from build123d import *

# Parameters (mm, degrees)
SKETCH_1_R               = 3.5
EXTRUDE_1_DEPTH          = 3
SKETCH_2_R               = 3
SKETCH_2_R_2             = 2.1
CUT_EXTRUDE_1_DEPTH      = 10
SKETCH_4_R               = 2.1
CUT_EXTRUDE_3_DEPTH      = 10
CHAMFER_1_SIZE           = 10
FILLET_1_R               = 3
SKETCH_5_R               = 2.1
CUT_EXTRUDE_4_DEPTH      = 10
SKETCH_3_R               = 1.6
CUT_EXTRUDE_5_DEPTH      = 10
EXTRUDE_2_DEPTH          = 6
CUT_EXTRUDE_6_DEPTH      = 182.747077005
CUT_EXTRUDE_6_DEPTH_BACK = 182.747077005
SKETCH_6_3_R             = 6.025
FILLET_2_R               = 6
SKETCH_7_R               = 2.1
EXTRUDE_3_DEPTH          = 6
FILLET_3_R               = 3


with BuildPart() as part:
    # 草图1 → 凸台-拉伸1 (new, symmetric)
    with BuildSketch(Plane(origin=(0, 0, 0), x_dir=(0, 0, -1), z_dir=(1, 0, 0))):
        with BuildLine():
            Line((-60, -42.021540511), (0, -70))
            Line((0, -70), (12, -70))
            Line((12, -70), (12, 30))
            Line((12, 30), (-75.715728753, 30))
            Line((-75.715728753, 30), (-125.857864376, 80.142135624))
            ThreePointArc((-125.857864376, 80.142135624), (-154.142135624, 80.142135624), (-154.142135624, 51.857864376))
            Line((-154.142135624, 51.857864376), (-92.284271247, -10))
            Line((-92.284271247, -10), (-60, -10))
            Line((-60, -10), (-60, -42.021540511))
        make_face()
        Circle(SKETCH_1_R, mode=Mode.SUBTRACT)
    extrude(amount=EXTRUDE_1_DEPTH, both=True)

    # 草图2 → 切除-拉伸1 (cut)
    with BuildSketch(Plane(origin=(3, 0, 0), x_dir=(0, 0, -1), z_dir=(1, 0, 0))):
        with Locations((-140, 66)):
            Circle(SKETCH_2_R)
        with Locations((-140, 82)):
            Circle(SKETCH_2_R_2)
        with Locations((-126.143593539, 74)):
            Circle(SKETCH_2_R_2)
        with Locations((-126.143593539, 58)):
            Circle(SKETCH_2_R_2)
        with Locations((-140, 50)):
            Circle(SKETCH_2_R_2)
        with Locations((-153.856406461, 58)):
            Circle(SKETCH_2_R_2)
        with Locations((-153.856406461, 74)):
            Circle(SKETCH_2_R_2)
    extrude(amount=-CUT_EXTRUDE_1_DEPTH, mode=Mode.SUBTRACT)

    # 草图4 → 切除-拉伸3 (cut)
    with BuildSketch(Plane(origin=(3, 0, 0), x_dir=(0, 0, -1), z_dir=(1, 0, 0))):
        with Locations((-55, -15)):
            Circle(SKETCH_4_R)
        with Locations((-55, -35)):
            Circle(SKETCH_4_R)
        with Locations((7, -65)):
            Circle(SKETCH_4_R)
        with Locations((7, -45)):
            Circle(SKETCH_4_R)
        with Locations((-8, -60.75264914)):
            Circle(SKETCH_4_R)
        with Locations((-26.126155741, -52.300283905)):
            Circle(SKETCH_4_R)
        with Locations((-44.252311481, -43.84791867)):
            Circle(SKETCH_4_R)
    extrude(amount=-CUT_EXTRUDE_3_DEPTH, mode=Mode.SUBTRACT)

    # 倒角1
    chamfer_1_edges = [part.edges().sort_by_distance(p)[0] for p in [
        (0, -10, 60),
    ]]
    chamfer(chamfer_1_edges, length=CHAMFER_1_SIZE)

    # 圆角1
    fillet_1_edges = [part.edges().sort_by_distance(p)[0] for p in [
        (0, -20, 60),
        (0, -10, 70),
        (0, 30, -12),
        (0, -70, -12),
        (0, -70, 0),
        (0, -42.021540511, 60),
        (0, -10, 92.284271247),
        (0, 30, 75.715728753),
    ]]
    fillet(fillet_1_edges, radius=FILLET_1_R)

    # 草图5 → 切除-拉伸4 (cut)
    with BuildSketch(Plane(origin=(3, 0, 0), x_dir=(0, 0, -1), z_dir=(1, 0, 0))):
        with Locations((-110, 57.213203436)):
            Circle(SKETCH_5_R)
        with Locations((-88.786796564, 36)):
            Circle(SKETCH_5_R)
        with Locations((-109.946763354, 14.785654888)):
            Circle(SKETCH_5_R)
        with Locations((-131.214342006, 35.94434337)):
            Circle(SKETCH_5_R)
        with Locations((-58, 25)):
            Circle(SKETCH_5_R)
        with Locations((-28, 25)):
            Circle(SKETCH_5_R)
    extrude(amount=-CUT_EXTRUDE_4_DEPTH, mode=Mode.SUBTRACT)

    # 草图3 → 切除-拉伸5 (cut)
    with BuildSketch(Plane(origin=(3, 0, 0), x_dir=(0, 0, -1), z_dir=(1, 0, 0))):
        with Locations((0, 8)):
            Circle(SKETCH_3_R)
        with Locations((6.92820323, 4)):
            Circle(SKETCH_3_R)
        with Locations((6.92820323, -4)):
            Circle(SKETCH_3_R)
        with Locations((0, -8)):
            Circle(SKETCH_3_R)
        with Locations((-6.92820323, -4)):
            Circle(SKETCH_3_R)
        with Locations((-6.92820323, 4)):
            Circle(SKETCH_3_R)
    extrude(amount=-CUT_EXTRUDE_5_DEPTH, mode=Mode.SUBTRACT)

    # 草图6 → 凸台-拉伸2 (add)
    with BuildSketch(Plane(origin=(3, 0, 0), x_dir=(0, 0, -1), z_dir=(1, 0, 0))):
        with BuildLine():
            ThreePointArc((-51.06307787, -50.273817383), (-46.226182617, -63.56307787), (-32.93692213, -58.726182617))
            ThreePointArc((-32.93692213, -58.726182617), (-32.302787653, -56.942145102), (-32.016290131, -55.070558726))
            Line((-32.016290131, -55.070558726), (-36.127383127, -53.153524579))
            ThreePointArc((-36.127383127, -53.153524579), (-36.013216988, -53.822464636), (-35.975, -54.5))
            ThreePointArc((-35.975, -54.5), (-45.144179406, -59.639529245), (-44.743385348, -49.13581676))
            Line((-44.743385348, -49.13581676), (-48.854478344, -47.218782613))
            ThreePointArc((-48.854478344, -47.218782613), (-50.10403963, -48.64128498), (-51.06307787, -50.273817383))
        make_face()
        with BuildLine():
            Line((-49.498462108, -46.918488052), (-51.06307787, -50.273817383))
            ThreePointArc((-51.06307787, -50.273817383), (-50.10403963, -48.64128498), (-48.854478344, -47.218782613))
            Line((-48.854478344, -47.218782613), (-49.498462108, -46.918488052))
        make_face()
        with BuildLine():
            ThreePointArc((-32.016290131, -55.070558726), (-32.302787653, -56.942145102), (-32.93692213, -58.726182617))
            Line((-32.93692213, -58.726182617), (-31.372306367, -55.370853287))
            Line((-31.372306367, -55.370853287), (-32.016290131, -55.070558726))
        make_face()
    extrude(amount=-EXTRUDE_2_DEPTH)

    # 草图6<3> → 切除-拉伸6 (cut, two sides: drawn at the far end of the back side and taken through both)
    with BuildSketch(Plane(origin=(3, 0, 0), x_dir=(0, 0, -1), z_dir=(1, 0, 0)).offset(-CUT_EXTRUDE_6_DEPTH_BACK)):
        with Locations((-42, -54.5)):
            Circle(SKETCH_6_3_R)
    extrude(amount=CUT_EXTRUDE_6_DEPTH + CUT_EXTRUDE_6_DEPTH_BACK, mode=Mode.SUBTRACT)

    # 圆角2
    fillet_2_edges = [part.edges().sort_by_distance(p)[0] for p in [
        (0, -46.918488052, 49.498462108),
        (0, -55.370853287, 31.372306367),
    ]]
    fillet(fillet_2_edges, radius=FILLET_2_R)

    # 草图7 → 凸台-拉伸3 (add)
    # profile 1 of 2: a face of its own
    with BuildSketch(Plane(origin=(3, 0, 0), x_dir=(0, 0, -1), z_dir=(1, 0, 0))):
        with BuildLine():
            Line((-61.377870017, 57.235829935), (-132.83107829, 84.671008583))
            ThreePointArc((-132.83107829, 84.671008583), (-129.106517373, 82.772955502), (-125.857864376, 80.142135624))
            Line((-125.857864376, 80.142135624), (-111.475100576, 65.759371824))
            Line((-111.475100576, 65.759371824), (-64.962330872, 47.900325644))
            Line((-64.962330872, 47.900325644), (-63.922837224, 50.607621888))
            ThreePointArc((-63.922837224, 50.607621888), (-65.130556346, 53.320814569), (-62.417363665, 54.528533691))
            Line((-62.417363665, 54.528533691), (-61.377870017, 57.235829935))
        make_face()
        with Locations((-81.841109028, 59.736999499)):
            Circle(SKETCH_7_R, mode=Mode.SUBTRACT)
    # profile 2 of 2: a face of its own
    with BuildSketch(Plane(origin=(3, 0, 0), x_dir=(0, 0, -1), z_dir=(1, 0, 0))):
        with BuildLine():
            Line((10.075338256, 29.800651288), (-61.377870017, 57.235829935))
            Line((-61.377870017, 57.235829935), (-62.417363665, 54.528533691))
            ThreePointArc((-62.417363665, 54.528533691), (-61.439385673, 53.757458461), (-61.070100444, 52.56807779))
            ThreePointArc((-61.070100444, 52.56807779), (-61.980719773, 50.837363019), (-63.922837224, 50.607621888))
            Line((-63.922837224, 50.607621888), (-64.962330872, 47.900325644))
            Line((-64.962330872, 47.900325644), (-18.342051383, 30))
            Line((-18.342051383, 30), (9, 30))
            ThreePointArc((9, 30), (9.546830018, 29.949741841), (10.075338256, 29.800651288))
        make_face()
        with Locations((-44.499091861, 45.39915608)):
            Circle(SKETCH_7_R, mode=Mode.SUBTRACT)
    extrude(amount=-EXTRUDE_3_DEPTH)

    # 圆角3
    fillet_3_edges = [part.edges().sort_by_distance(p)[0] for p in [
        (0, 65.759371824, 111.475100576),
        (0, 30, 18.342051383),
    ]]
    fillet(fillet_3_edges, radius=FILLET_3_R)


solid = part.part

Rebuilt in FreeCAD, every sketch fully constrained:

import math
import FreeCAD as App
import Part
import Sketcher
Q = App.Units.Quantity


def edges_at(feature, points):
    """Names of the edges that pass closest to the given points."""
    edges = feature.Shape.Edges
    near = lambda p: min(range(len(edges)), key=lambda i: edges[i].distToShape(Part.Vertex(*p))[0])
    return sorted({f"Edge{near(p) + 1}" for p in points})

doc = App.newDocument("Part")
body = doc.addObject("PartDesign::Body", "Body")

# Sketch on YZ plane
sketch1 = body.newObject("Sketcher::SketchObject", "Sketch")
sketch1.AttachmentSupport = (doc.getObject("YZ_Plane"), [""])
sketch1.MapMode = "FlatFace"
sketch1.addGeometry(Part.LineSegment(App.Vector(-42.021541, 60, 0), App.Vector(-70, 0, 0)), False)
sketch1.addGeometry(Part.LineSegment(App.Vector(-70, 0, 0), App.Vector(-70, -12, 0)), False)
sketch1.addGeometry(Part.LineSegment(App.Vector(-70, -12, 0), App.Vector(30, -12, 0)), False)
sketch1.addGeometry(Part.LineSegment(App.Vector(30, -12, 0), App.Vector(30, 75.715729, 0)), False)
sketch1.addGeometry(Part.LineSegment(App.Vector(30, 75.715729, 0), App.Vector(80.142136, 125.857864, 0)), False)
sketch1.addGeometry(Part.ArcOfCircle(Part.Circle(App.Vector(66, 140, 0), App.Vector(0, 0, 1), 20), math.radians(-45), math.radians(135)), False)
sketch1.addGeometry(Part.LineSegment(App.Vector(51.857864, 154.142136, 0), App.Vector(-10, 92.284271, 0)), False)
sketch1.addGeometry(Part.LineSegment(App.Vector(-10, 92.284271, 0), App.Vector(-10, 60, 0)), False)
sketch1.addGeometry(Part.LineSegment(App.Vector(-10, 60, 0), App.Vector(-42.021541, 60, 0)), False)
sketch1.addGeometry(Part.Circle(App.Vector(0, 0, 0), App.Vector(0, 0, 1), 3.5), False)
sketch1.addConstraint(Sketcher.Constraint("Coincident", 0, 2, 1, 1))
sketch1.addConstraint(Sketcher.Constraint("Coincident", 1, 2, 2, 1))
sketch1.addConstraint(Sketcher.Constraint("Coincident", 2, 2, 3, 1))
sketch1.addConstraint(Sketcher.Constraint("Coincident", 3, 2, 4, 1))
sketch1.addConstraint(Sketcher.Constraint("Tangent", 4, 2, 5, 1))
sketch1.addConstraint(Sketcher.Constraint("Tangent", 5, 2, 6, 1))
sketch1.addConstraint(Sketcher.Constraint("Coincident", 6, 2, 7, 1))
sketch1.addConstraint(Sketcher.Constraint("Coincident", 7, 2, 8, 1))
sketch1.addConstraint(Sketcher.Constraint("Coincident", 8, 2, 0, 1))
sketch1.addConstraint(Sketcher.Constraint("Vertical", 1))
sketch1.addConstraint(Sketcher.Constraint("Horizontal", 2))
sketch1.addConstraint(Sketcher.Constraint("Vertical", 3))
sketch1.addConstraint(Sketcher.Constraint("Vertical", 7))
sketch1.addConstraint(Sketcher.Constraint("Horizontal", 8))
sketch1.addConstraint(Sketcher.Constraint("Coincident", 9, 3, -1, 1))
sketch1.addConstraint(Sketcher.Constraint("PointOnObject", 0, 2, -1))
sketch1.addConstraint(Sketcher.Constraint("Parallel", 4, 6))
sketch1.addConstraint(Sketcher.Constraint("Diameter", 9, 7.0))
sketch1.addConstraint(Sketcher.Constraint("Radius", 5, 20.0))
sketch1.addConstraint(Sketcher.Constraint("DistanceX", 2, 1, 2, 2, 100.0))
sketch1.addConstraint(Sketcher.Constraint("DistanceY", 1, 2, 1, 1, 12.0))
sketch1.addConstraint(Sketcher.Constraint("Angle", 0, Q("-115 deg")))
sketch1.addConstraint(Sketcher.Constraint("Angle", 4, Q("45 deg")))
sketch1.addConstraint(Sketcher.Constraint("DistanceX", -1, 1, 5, 3, 66.0))
sketch1.addConstraint(Sketcher.Constraint("DistanceY", -1, 1, 5, 3, 140.0))
sketch1.addConstraint(Sketcher.Constraint("DistanceX", 0, 2, -1, 1, 70.0))
sketch1.addConstraint(Sketcher.Constraint("DistanceX", 6, 2, -1, 1, 10.0))
sketch1.addConstraint(Sketcher.Constraint("DistanceY", -1, 1, 7, 2, 60.0))
pad1 = body.newObject("PartDesign::Pad", "Pad")
pad1.Profile = sketch1
pad1.Length = 6
pad1.Midplane = True

# Sketch on YZ plane
sketch2 = body.newObject("Sketcher::SketchObject", "Sketch001")
sketch2.AttachmentSupport = (doc.getObject("YZ_Plane"), [""])
sketch2.MapMode = "FlatFace"
sketch2.AttachmentOffset = App.Placement(App.Vector(0, 0, 3), App.Rotation())
sketch2.addGeometry(Part.Circle(App.Vector(66, 140, 0), App.Vector(0, 0, 1), 3), False)
sketch2.addGeometry(Part.Circle(App.Vector(82, 140, 0), App.Vector(0, 0, 1), 2.1), False)
sketch2.addGeometry(Part.Circle(App.Vector(74, 126.143594, 0), App.Vector(0, 0, 1), 2.1), False)
sketch2.addGeometry(Part.Circle(App.Vector(58, 126.143594, 0), App.Vector(0, 0, 1), 2.1), False)
sketch2.addGeometry(Part.Circle(App.Vector(50, 140, 0), App.Vector(0, 0, 1), 2.1), False)
sketch2.addGeometry(Part.Circle(App.Vector(58, 153.856406, 0), App.Vector(0, 0, 1), 2.1), False)
sketch2.addGeometry(Part.Circle(App.Vector(74, 153.856406, 0), App.Vector(0, 0, 1), 2.1), False)
sketch2.addConstraint(Sketcher.Constraint("Equal", 1, 2))
sketch2.addConstraint(Sketcher.Constraint("Equal", 2, 3))
sketch2.addConstraint(Sketcher.Constraint("Equal", 3, 4))
sketch2.addConstraint(Sketcher.Constraint("Equal", 4, 5))
sketch2.addConstraint(Sketcher.Constraint("Equal", 5, 6))
sketch2.addConstraint(Sketcher.Constraint("Horizontal", 0, 3, 1, 3))
sketch2.addConstraint(Sketcher.Constraint("Horizontal", 2, 3, 3, 3))
sketch2.addConstraint(Sketcher.Constraint("Horizontal", 1, 3, 4, 3))
sketch2.addConstraint(Sketcher.Constraint("Horizontal", 5, 3, 6, 3))
sketch2.addConstraint(Sketcher.Constraint("Vertical", 3, 3, 5, 3))
sketch2.addConstraint(Sketcher.Constraint("Vertical", 2, 3, 6, 3))
sketch2.addConstraint(Sketcher.Constraint("Diameter", 0, 6.0))
sketch2.addConstraint(Sketcher.Constraint("Diameter", 1, 4.2))
sketch2.addConstraint(Sketcher.Constraint("DistanceX", -1, 1, 0, 3, 66.0))
sketch2.addConstraint(Sketcher.Constraint("DistanceY", -1, 1, 0, 3, 140.0))
sketch2.addConstraint(Sketcher.Constraint("DistanceX", -1, 1, 1, 3, 82.0))
sketch2.addConstraint(Sketcher.Constraint("DistanceX", -1, 1, 2, 3, 74.0))
sketch2.addConstraint(Sketcher.Constraint("DistanceX", -1, 1, 3, 3, 58.0))
sketch2.addConstraint(Sketcher.Constraint("DistanceX", -1, 1, 4, 3, 50.0))
sketch2.addConstraint(Sketcher.Constraint("DistanceY", -1, 1, 2, 3, 126.143594))
sketch2.addConstraint(Sketcher.Constraint("DistanceY", -1, 1, 5, 3, 153.856406))
pocket1 = body.newObject("PartDesign::Pocket", "Pocket")
pocket1.Profile = sketch2
pocket1.Length = 10

# Sketch on YZ plane
sketch3 = body.newObject("Sketcher::SketchObject", "Sketch002")
sketch3.AttachmentSupport = (doc.getObject("YZ_Plane"), [""])
sketch3.MapMode = "FlatFace"
sketch3.AttachmentOffset = App.Placement(App.Vector(0, 0, 3), App.Rotation())
sketch3.addGeometry(Part.Circle(App.Vector(-15, 55, 0), App.Vector(0, 0, 1), 2.1), False)
sketch3.addGeometry(Part.Circle(App.Vector(-35, 55, 0), App.Vector(0, 0, 1), 2.1), False)
sketch3.addGeometry(Part.Circle(App.Vector(-65, -7, 0), App.Vector(0, 0, 1), 2.1), False)
sketch3.addGeometry(Part.Circle(App.Vector(-45, -7, 0), App.Vector(0, 0, 1), 2.1), False)
sketch3.addGeometry(Part.Circle(App.Vector(-60.752649, 8, 0), App.Vector(0, 0, 1), 2.1), False)
sketch3.addGeometry(Part.Circle(App.Vector(-52.300284, 26.126156, 0), App.Vector(0, 0, 1), 2.1), False)
sketch3.addGeometry(Part.Circle(App.Vector(-43.847919, 44.252311, 0), App.Vector(0, 0, 1), 2.1), False)
sketch3.addConstraint(Sketcher.Constraint("Equal", 0, 1))
sketch3.addConstraint(Sketcher.Constraint("Equal", 1, 2))
sketch3.addConstraint(Sketcher.Constraint("Equal", 2, 3))
sketch3.addConstraint(Sketcher.Constraint("Equal", 3, 4))
sketch3.addConstraint(Sketcher.Constraint("Equal", 4, 5))
sketch3.addConstraint(Sketcher.Constraint("Equal", 5, 6))
sketch3.addConstraint(Sketcher.Constraint("Horizontal", 0, 3, 1, 3))
sketch3.addConstraint(Sketcher.Constraint("Horizontal", 2, 3, 3, 3))
sketch3.addConstraint(Sketcher.Constraint("Diameter", 0, 4.2))
sketch3.addConstraint(Sketcher.Constraint("DistanceX", 0, 3, -1, 1, 15.0))
sketch3.addConstraint(Sketcher.Constraint("DistanceY", -1, 1, 0, 3, 55.0))
sketch3.addConstraint(Sketcher.Constraint("DistanceX", 1, 3, -1, 1, 35.0))
sketch3.addConstraint(Sketcher.Constraint("DistanceX", 2, 3, -1, 1, 65.0))
sketch3.addConstraint(Sketcher.Constraint("DistanceY", 2, 3, -1, 1, 7.0))
sketch3.addConstraint(Sketcher.Constraint("DistanceX", 3, 3, -1, 1, 45.0))
sketch3.addConstraint(Sketcher.Constraint("DistanceY", -1, 1, 4, 3, 8.0))
sketch3.addConstraint(Sketcher.Constraint("DistanceX", 4, 3, -1, 1, 60.752649))
sketch3.addConstraint(Sketcher.Constraint("DistanceX", 6, 3, -1, 1, 43.847919))
sketch3.addConstraint(Sketcher.Constraint("DistanceY", -1, 1, 6, 3, 44.252311))
sketch3.addConstraint(Sketcher.Constraint("DistanceX", 5, 3, -1, 1, 52.300284))
sketch3.addConstraint(Sketcher.Constraint("DistanceY", -1, 1, 5, 3, 26.126156))
pocket2 = body.newObject("PartDesign::Pocket", "Pocket001")
pocket2.Profile = sketch3
pocket2.Length = 10
doc.recompute()

chamfer = body.newObject("PartDesign::Chamfer", "Chamfer")
chamfer.Base = (pocket2, edges_at(pocket2, [(0, -10, 60)]))
chamfer.Size = 10
doc.recompute()

fillet = body.newObject("PartDesign::Fillet", "Fillet")
fillet.Base = (chamfer, edges_at(chamfer, [
    (0, -20, 60),
    (0, -10, 70),
    (0, 30, -12),
    (0, -70, -12),
    (0, -70, 0),
    (0, -42.022, 60),
    (0, -10, 92.284),
    (0, 30, 75.716),
]))
fillet.Radius = 3

# Sketch on YZ plane
sketch4 = body.newObject("Sketcher::SketchObject", "Sketch003")
sketch4.AttachmentSupport = (doc.getObject("YZ_Plane"), [""])
sketch4.MapMode = "FlatFace"
sketch4.AttachmentOffset = App.Placement(App.Vector(0, 0, 3), App.Rotation())
sketch4.addGeometry(Part.Circle(App.Vector(57.213203, 110, 0), App.Vector(0, 0, 1), 2.1), False)
sketch4.addGeometry(Part.Circle(App.Vector(36, 88.786797, 0), App.Vector(0, 0, 1), 2.1), False)
sketch4.addGeometry(Part.Circle(App.Vector(14.785655, 109.946763, 0), App.Vector(0, 0, 1), 2.1), False)
sketch4.addGeometry(Part.Circle(App.Vector(35.944343, 131.214342, 0), App.Vector(0, 0, 1), 2.1), False)
sketch4.addGeometry(Part.Circle(App.Vector(25, 58, 0), App.Vector(0, 0, 1), 2.1), False)
sketch4.addGeometry(Part.Circle(App.Vector(25, 28, 0), App.Vector(0, 0, 1), 2.1), False)
sketch4.addConstraint(Sketcher.Constraint("Equal", 0, 1))
sketch4.addConstraint(Sketcher.Constraint("Equal", 1, 2))
sketch4.addConstraint(Sketcher.Constraint("Equal", 2, 3))
sketch4.addConstraint(Sketcher.Constraint("Equal", 3, 4))
sketch4.addConstraint(Sketcher.Constraint("Equal", 4, 5))
sketch4.addConstraint(Sketcher.Constraint("Vertical", 4, 3, 5, 3))
sketch4.addConstraint(Sketcher.Constraint("Diameter", 0, 4.2))
sketch4.addConstraint(Sketcher.Constraint("DistanceY", -1, 1, 0, 3, 110.0))
sketch4.addConstraint(Sketcher.Constraint("DistanceX", -1, 1, 1, 3, 36.0))
sketch4.addConstraint(Sketcher.Constraint("DistanceX", -1, 1, 4, 3, 25.0))
sketch4.addConstraint(Sketcher.Constraint("DistanceY", -1, 1, 4, 3, 58.0))
sketch4.addConstraint(Sketcher.Constraint("DistanceY", -1, 1, 5, 3, 28.0))
sketch4.addConstraint(Sketcher.Constraint("DistanceX", 2, 3, 0, 3, 42.427549))
sketch4.addConstraint(Sketcher.Constraint("DistanceX", 2, 3, 3, 3, 21.158688))
sketch4.addConstraint(Sketcher.Constraint("DistanceY", 2, 3, 3, 3, 21.267579))
sketch4.addConstraint(Sketcher.Constraint("DistanceX", -1, 1, 0, 3, 57.213203))
sketch4.addConstraint(Sketcher.Constraint("DistanceY", -1, 1, 1, 3, 88.786797))
sketch4.addConstraint(Sketcher.Constraint("DistanceY", -1, 1, 2, 3, 109.946763))
pocket3 = body.newObject("PartDesign::Pocket", "Pocket002")
pocket3.Profile = sketch4
pocket3.Length = 10

# Sketch on YZ plane
sketch5 = body.newObject("Sketcher::SketchObject", "Sketch004")
sketch5.AttachmentSupport = (doc.getObject("YZ_Plane"), [""])
sketch5.MapMode = "FlatFace"
sketch5.AttachmentOffset = App.Placement(App.Vector(0, 0, 3), App.Rotation())
sketch5.addGeometry(Part.Circle(App.Vector(8, 0, 0), App.Vector(0, 0, 1), 1.6), False)
sketch5.addGeometry(Part.Circle(App.Vector(4, -6.928203, 0), App.Vector(0, 0, 1), 1.6), False)
sketch5.addGeometry(Part.Circle(App.Vector(-4, -6.928203, 0), App.Vector(0, 0, 1), 1.6), False)
sketch5.addGeometry(Part.Circle(App.Vector(-8, 0, 0), App.Vector(0, 0, 1), 1.6), False)
sketch5.addGeometry(Part.Circle(App.Vector(-4, 6.928203, 0), App.Vector(0, 0, 1), 1.6), False)
sketch5.addGeometry(Part.Circle(App.Vector(4, 6.928203, 0), App.Vector(0, 0, 1), 1.6), False)
sketch5.addConstraint(Sketcher.Constraint("Equal", 0, 1))
sketch5.addConstraint(Sketcher.Constraint("Equal", 1, 2))
sketch5.addConstraint(Sketcher.Constraint("Equal", 2, 3))
sketch5.addConstraint(Sketcher.Constraint("Equal", 3, 4))
sketch5.addConstraint(Sketcher.Constraint("Equal", 4, 5))
sketch5.addConstraint(Sketcher.Constraint("Symmetric", 0, 3, 3, 3, -1, 1))
sketch5.addConstraint(Sketcher.Constraint("Symmetric", 1, 3, 4, 3, -1, 1))
sketch5.addConstraint(Sketcher.Constraint("Symmetric", 2, 3, 5, 3, -1, 1))
sketch5.addConstraint(Sketcher.Constraint("Symmetric", 1, 3, 2, 3, -2))
sketch5.addConstraint(Sketcher.Constraint("PointOnObject", 0, 3, -1))
sketch5.addConstraint(Sketcher.Constraint("Diameter", 0, 3.2))
sketch5.addConstraint(Sketcher.Constraint("DistanceX", -1, 1, 0, 3, 8.0))
sketch5.addConstraint(Sketcher.Constraint("DistanceX", -1, 1, 1, 3, 4.0))
sketch5.addConstraint(Sketcher.Constraint("DistanceY", 1, 3, -1, 1, 6.928203))
pocket4 = body.newObject("PartDesign::Pocket", "Pocket003")
pocket4.Profile = sketch5
pocket4.Length = 10

# Sketch on YZ plane
sketch6 = body.newObject("Sketcher::SketchObject", "Sketch005")
sketch6.AttachmentSupport = (doc.getObject("YZ_Plane"), [""])
sketch6.MapMode = "FlatFace"
sketch6.AttachmentOffset = App.Placement(App.Vector(0, 0, 3), App.Rotation())
sketch6.addGeometry(Part.ArcOfCircle(Part.Circle(App.Vector(-54.5, 42, 0), App.Vector(0, 0, 1), 10), math.radians(65), math.radians(245)), False)
sketch6.addGeometry(Part.LineSegment(App.Vector(-58.726183, 32.936922, 0), App.Vector(-55.370853, 31.372306, 0)), False)
sketch6.addGeometry(Part.LineSegment(App.Vector(-55.370853, 31.372306, 0), App.Vector(-55.070559, 32.01629, 0)), False)
sketch6.addGeometry(Part.LineSegment(App.Vector(-55.070559, 32.01629, 0), App.Vector(-53.153525, 36.127383, 0)), False)
sketch6.addGeometry(Part.ArcOfCircle(Part.Circle(App.Vector(-54.5, 42, 0), App.Vector(0, 0, 1), 6.025), math.radians(-90), math.radians(-77.086405)), False)
sketch6.addGeometry(Part.ArcOfCircle(Part.Circle(App.Vector(-54.5, 42, 0), App.Vector(0, 0, 1), 6.025), math.radians(27.086405), math.radians(270)), False)
sketch6.addGeometry(Part.LineSegment(App.Vector(-49.135817, 44.743385, 0), App.Vector(-47.218783, 48.854478, 0)), False)
sketch6.addGeometry(Part.LineSegment(App.Vector(-47.218783, 48.854478, 0), App.Vector(-46.918488, 49.498462, 0)), False)
sketch6.addGeometry(Part.LineSegment(App.Vector(-46.918488, 49.498462, 0), App.Vector(-50.273817, 51.063078, 0)), False)
sketch6.addConstraint(Sketcher.Constraint("Tangent", 0, 2, 1, 1))
sketch6.addConstraint(Sketcher.Constraint("Coincident", 1, 2, 2, 1))
sketch6.addConstraint(Sketcher.Constraint("Coincident", 2, 2, 3, 1))
sketch6.addConstraint(Sketcher.Constraint("Coincident", 3, 2, 4, 2))
sketch6.addConstraint(Sketcher.Constraint("Tangent", 4, 1, 5, 2))
sketch6.addConstraint(Sketcher.Constraint("Coincident", 5, 1, 6, 1))
sketch6.addConstraint(Sketcher.Constraint("Coincident", 6, 2, 7, 1))
sketch6.addConstraint(Sketcher.Constraint("Coincident", 7, 2, 8, 1))
sketch6.addConstraint(Sketcher.Constraint("Tangent", 8, 2, 0, 1))
sketch6.addConstraint(Sketcher.Constraint("Coincident", 4, 3, 0, 3))
sketch6.addConstraint(Sketcher.Constraint("Equal", 4, 5))
sketch6.addConstraint(Sketcher.Constraint("Perpendicular", 1, 2))
sketch6.addConstraint(Sketcher.Constraint("Parallel", 2, 3))
sketch6.addConstraint(Sketcher.Constraint("Parallel", 3, 6))
sketch6.addConstraint(Sketcher.Constraint("Parallel", 6, 7))
sketch6.addConstraint(Sketcher.Constraint("Perpendicular", 7, 8))
sketch6.addConstraint(Sketcher.Constraint("Vertical", 5, 3, 4, 1))
sketch6.addConstraint(Sketcher.Constraint("Equal", 3, 6))
sketch6.addConstraint(Sketcher.Constraint("Equal", 2, 7))
sketch6.addConstraint(Sketcher.Constraint("Radius", 0, 10.0))
sketch6.addConstraint(Sketcher.Constraint("Angle", 1, Q("-25 deg")))
sketch6.addConstraint(Sketcher.Constraint("DistanceY", -1, 1, 0, 3, 42.0))
sketch6.addConstraint(Sketcher.Constraint("Radius", 4, 6.025))
sketch6.addConstraint(Sketcher.Constraint("DistanceX", 0, 3, -1, 1, 54.5))
sketch6.addConstraint(Sketcher.Constraint("DistanceX", 8, 2, 5, 1, 1.138001))
sketch6.addConstraint(Sketcher.Constraint("DistanceY", 6, 2, 8, 2, 2.2086))
pad2 = body.newObject("PartDesign::Pad", "Pad001")
pad2.Profile = sketch6
pad2.Length = 6
pad2.Reversed = True

# Sketch on YZ plane
sketch7 = body.newObject("Sketcher::SketchObject", "Sketch006")
sketch7.AttachmentSupport = (doc.getObject("YZ_Plane"), [""])
sketch7.MapMode = "FlatFace"
sketch7.AttachmentOffset = App.Placement(App.Vector(0, 0, 3), App.Rotation())
sketch7.addGeometry(Part.Circle(App.Vector(-54.5, 42, 0), App.Vector(0, 0, 1), 6.025), False)
sketch7.addConstraint(Sketcher.Constraint("Diameter", 0, 12.05))
sketch7.addConstraint(Sketcher.Constraint("DistanceY", -1, 1, 0, 3, 42.0))
sketch7.addConstraint(Sketcher.Constraint("DistanceX", 0, 3, -1, 1, 54.5))
pocket5 = body.newObject("PartDesign::Pocket", "Pocket004")
pocket5.Profile = sketch7
pocket5.Type = "ThroughAll"
pocket5.Midplane = True
doc.recompute()

fillet2 = body.newObject("PartDesign::Fillet", "Fillet001")
fillet2.Base = (pocket5, edges_at(pocket5, [(0, -46.918, 49.498), (0, -55.371, 31.372)]))
fillet2.Radius = 6

# Sketch on YZ plane
sketch8 = body.newObject("Sketcher::SketchObject", "Sketch007")
sketch8.AttachmentSupport = (doc.getObject("YZ_Plane"), [""])
sketch8.MapMode = "FlatFace"
sketch8.AttachmentOffset = App.Placement(App.Vector(0, 0, 3), App.Rotation())
sketch8.addGeometry(Part.LineSegment(App.Vector(57.23583, 61.37787, 0), App.Vector(84.671009, 132.831078, 0)), False)
sketch8.addGeometry(Part.ArcOfCircle(Part.Circle(App.Vector(66, 140, 0), App.Vector(0, 0, 1), 20), math.radians(-45), math.radians(-21.004795)), False)
sketch8.addGeometry(Part.LineSegment(App.Vector(80.142136, 125.857864, 0), App.Vector(65.759372, 111.475101, 0)), False)
sketch8.addGeometry(Part.LineSegment(App.Vector(65.759372, 111.475101, 0), App.Vector(47.900326, 64.962331, 0)), False)
sketch8.addGeometry(Part.LineSegment(App.Vector(47.900326, 64.962331, 0), App.Vector(30, 18.342051, 0)), False)
sketch8.addGeometry(Part.LineSegment(App.Vector(30, 18.342051, 0), App.Vector(30, -9, 0)), False)
sketch8.addGeometry(Part.ArcOfCircle(Part.Circle(App.Vector(27, -9, 0), App.Vector(0, 0, 1), 3), math.radians(-21.004795), math.radians(0)), False)
sketch8.addGeometry(Part.LineSegment(App.Vector(29.800651, -10.075338, 0), App.Vector(57.23583, 61.37787, 0)), False)
sketch8.addGeometry(Part.ArcOfCircle(Part.Circle(App.Vector(52.568078, 63.1701, 0), App.Vector(0, 0, 1), 2.1), math.radians(-21.004795), math.radians(158.995205)), False)
sketch8.addGeometry(Part.ArcOfCircle(Part.Circle(App.Vector(52.568078, 63.1701, 0), App.Vector(0, 0, 1), 2.1), math.radians(-90), math.radians(-21.004795)), False)
sketch8.addGeometry(Part.ArcOfCircle(Part.Circle(App.Vector(52.568078, 63.1701, 0), App.Vector(0, 0, 1), 2.1), math.radians(158.995205), math.radians(270)), False)
sketch8.addGeometry(Part.Circle(App.Vector(59.736999, 81.841109, 0), App.Vector(0, 0, 1), 2.1), False)
sketch8.addGeometry(Part.Circle(App.Vector(45.399156, 44.499092, 0), App.Vector(0, 0, 1), 2.1), False)
sketch8.addConstraint(Sketcher.Constraint("Tangent", 0, 2, 1, 2))
sketch8.addConstraint(Sketcher.Constraint("Tangent", 1, 1, 2, 1))
sketch8.addConstraint(Sketcher.Constraint("Coincident", 2, 2, 3, 1))
sketch8.addConstraint(Sketcher.Constraint("Coincident", 3, 2, 4, 1))
sketch8.addConstraint(Sketcher.Constraint("Coincident", 4, 2, 5, 1))
sketch8.addConstraint(Sketcher.Constraint("Tangent", 5, 2, 6, 2))
sketch8.addConstraint(Sketcher.Constraint("Tangent", 6, 1, 7, 1))
sketch8.addConstraint(Sketcher.Constraint("Coincident", 7, 2, 0, 1))
sketch8.addConstraint(Sketcher.Constraint("Tangent", 8, 1, 9, 2))
sketch8.addConstraint(Sketcher.Constraint("Tangent", 9, 1, 10, 2))
sketch8.addConstraint(Sketcher.Constraint("Tangent", 10, 1, 8, 2))
sketch8.addConstraint(Sketcher.Constraint("Vertical", 5))
sketch8.addConstraint(Sketcher.Constraint("Equal", 10, 11))
sketch8.addConstraint(Sketcher.Constraint("Equal", 11, 12))
sketch8.addConstraint(Sketcher.Constraint("Parallel", 0, 3))
sketch8.addConstraint(Sketcher.Constraint("Parallel", 3, 4))
sketch8.addConstraint(Sketcher.Constraint("Parallel", 4, 7))
sketch8.addConstraint(Sketcher.Constraint("Vertical", 10, 3, 9, 1))
sketch8.addConstraint(Sketcher.Constraint("Equal", 0, 7))
sketch8.addConstraint(Sketcher.Constraint("Radius", 1, 20.0))
sketch8.addConstraint(Sketcher.Constraint("Radius", 6, 3.0))
sketch8.addConstraint(Sketcher.Constraint("Diameter", 11, 4.2))
sketch8.addConstraint(Sketcher.Constraint("Angle", 2, Q("-135 deg")))
sketch8.addConstraint(Sketcher.Constraint("DistanceX", -1, 1, 1, 3, 66.0))
sketch8.addConstraint(Sketcher.Constraint("DistanceY", -1, 1, 1, 3, 140.0))
sketch8.addConstraint(Sketcher.Constraint("DistanceX", -1, 1, 6, 3, 27.0))
sketch8.addConstraint(Sketcher.Constraint("DistanceY", 6, 3, -1, 1, 9.0))
sketch8.addConstraint(Sketcher.Constraint("DistanceX", -1, 1, 11, 3, 59.736999))
sketch8.addConstraint(Sketcher.Constraint("DistanceY", 10, 3, 2, 2, 48.305))
sketch8.addConstraint(Sketcher.Constraint("Distance", 2, 20.3403))
sketch8.addConstraint(Sketcher.Constraint("Distance", 3, 49.823521))
sketch8.addConstraint(Sketcher.Constraint("DistanceY", -1, 1, 11, 3, 81.841109))
sketch8.addConstraint(Sketcher.Constraint("DistanceY", -1, 1, 12, 3, 44.499092))
sketch8.addConstraint(Sketcher.Constraint("DistanceX", -1, 1, 10, 1, 50.607622))
sketch8.addConstraint(Sketcher.Constraint("DistanceX", 10, 3, 11, 3, 7.168922))
sketch8.addConstraint(Sketcher.Constraint("DistanceX", 12, 3, 9, 3, 7.168922))
sketch8.addConstraint(Sketcher.Constraint("DistanceX", 3, 2, 8, 1, 6.628208))
pad3 = body.newObject("PartDesign::Pad", "Pad002")
pad3.Profile = sketch8
pad3.Length = 6
pad3.Reversed = True
doc.recompute()

fillet3 = body.newObject("PartDesign::Fillet", "Fillet002")
fillet3.Base = (pad3, edges_at(pad3, [(0, 65.759, 111.475), (0, 30, 18.342)]))
fillet3.Radius = 3

doc.recompute()
